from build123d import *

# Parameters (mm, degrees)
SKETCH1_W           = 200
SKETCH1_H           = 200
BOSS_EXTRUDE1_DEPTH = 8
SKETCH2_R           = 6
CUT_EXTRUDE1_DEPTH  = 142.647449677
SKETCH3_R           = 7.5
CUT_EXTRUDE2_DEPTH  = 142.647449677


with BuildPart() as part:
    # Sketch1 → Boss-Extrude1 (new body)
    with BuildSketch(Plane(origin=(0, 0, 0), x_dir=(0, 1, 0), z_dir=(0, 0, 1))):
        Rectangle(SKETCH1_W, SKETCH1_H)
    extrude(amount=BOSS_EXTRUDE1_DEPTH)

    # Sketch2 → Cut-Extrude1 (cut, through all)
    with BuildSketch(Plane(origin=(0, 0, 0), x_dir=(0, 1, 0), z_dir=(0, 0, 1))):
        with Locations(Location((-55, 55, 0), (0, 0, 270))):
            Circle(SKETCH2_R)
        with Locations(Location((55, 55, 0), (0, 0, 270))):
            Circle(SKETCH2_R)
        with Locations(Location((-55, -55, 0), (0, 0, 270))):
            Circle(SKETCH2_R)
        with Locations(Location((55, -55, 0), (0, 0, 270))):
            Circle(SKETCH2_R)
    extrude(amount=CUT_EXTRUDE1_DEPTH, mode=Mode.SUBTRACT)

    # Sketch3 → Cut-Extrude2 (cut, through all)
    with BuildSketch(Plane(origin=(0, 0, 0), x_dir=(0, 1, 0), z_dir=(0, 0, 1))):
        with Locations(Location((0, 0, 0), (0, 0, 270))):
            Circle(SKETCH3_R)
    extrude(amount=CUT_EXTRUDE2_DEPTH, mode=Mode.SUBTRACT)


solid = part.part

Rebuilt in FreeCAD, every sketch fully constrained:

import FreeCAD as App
import Part
import Sketcher

V = App.Vector


def add_polygon(sketch, points):
    """Adds a closed chain of lines whose ends are joined by coincident constraints."""
    first, n = sketch.GeometryCount, len(points)
    for a, b in zip(points, points[1:] + points[:1]):
        sketch.addGeometry(Part.LineSegment(App.Vector(*a, 0), App.Vector(*b, 0)), False)
    for i in range(n):
        sketch.addConstraint(Sketcher.Constraint("Coincident", first + i, 2, first + (i + 1) % n, 1))

doc = App.newDocument("Part")
params = doc.addObject("Spreadsheet::Sheet", "Params")
for row, (alias, value) in enumerate([
    ("sketch1_width", "200 mm"),
    ("pad1_length", "8 mm"),
    ("sketch2_diameter", "12 mm"),
    ("sketch3_diameter", "15 mm"),
], start=1):
    params.set(f"A{row}", alias)
    params.set(f"B{row}", "=" + value)
    params.setAlias(f"B{row}", alias)

body = doc.addObject("PartDesign::Body", "Body")

sketch1 = body.newObject("Sketcher::SketchObject", "Sketch")
sketch1.AttachmentSupport = (doc.getObject("XY_Plane"), [""])
sketch1.MapMode = "FlatFace"
add_polygon(sketch1, [(-100, -100), (100, -100), (100, 100), (-100, 100)])
sketch1.addConstraint(Sketcher.Constraint("Horizontal", 0))
sketch1.addConstraint(Sketcher.Constraint("Vertical", 1))
sketch1.addConstraint(Sketcher.Constraint("Horizontal", 2))
sketch1.addConstraint(Sketcher.Constraint("Vertical", 3))
sketch1.addConstraint(Sketcher.Constraint("Symmetric", 0, 2, 2, 2, -1, 1))
sketch1.addConstraint(Sketcher.Constraint("Equal", 2, 1))
sketch1.addConstraint(Sketcher.Constraint("DistanceX", 0, 1, 0, 2, 200.0))
sketch1.setExpression("Constraints[10]", "Params.sketch1_width")
pad1 = body.newObject("PartDesign::Pad", "Pad")
pad1.Profile = sketch1
pad1.setExpression("Length", "Params.pad1_length")

sketch2 = body.newObject("Sketcher::SketchObject", "Sketch001")
sketch2.AttachmentSupport = (doc.getObject("XY_Plane"), [""])
sketch2.MapMode = "FlatFace"
sketch2.addGeometry(Part.Circle(V(-55, -55, 0), V(0, 0, 1), 6), False)
sketch2.addGeometry(Part.Circle(V(-55, 55, 0), V(0, 0, 1), 6), False)
sketch2.addGeometry(Part.Circle(V(55, -55, 0), V(0, 0, 1), 6), False)
sketch2.addGeometry(Part.Circle(V(55, 55, 0), V(0, 0, 1), 6), False)
sketch2.addConstraint(Sketcher.Constraint("Equal", 0, 1))
sketch2.addConstraint(Sketcher.Constraint("Equal", 1, 2))
sketch2.addConstraint(Sketcher.Constraint("Equal", 2, 3))
sketch2.addConstraint(Sketcher.Constraint("Symmetric", 1, 3, 2, 3, -1, 1))
sketch2.addConstraint(Sketcher.Constraint("Symmetric", 0, 3, 3, 3, -1, 1))
sketch2.addConstraint(Sketcher.Constraint("Symmetric", 0, 3, 2, 3, -2))
sketch2.addConstraint(Sketcher.Constraint("Diameter", 0, 12.0))
sketch2.addConstraint(Sketcher.Constraint("DistanceX", 0, 3, -1, 1, 55.0))
sketch2.addConstraint(Sketcher.Constraint("DistanceY", 0, 3, -1, 1, 55.0))
sketch2.setExpression("Constraints[6]", "Params.sketch2_diameter")
pocket1 = body.newObject("PartDesign::Pocket", "Pocket")
pocket1.Profile = sketch2
pocket1.Type = "ThroughAll"
pocket1.Reversed = True

sketch3 = body.newObject("Sketcher::SketchObject", "Sketch002")
sketch3.AttachmentSupport = (doc.getObject("XY_Plane"), [""])
sketch3.MapMode = "FlatFace"
sketch3.addGeometry(Part.Circle(V(0, 0, 0), V(0, 0, 1), 8), False)
sketch3.addConstraint(Sketcher.Constraint("Coincident", 0, 3, -1, 1))
sketch3.addConstraint(Sketcher.Constraint("Diameter", 0, 15.0))
sketch3.setExpression("Constraints[1]", "Params.sketch3_diameter")
pocket2 = body.newObject("PartDesign::Pocket", "Pocket001")
pocket2.Profile = sketch3
pocket2.Type = "ThroughAll"
pocket2.Reversed = True

doc.recompute()
